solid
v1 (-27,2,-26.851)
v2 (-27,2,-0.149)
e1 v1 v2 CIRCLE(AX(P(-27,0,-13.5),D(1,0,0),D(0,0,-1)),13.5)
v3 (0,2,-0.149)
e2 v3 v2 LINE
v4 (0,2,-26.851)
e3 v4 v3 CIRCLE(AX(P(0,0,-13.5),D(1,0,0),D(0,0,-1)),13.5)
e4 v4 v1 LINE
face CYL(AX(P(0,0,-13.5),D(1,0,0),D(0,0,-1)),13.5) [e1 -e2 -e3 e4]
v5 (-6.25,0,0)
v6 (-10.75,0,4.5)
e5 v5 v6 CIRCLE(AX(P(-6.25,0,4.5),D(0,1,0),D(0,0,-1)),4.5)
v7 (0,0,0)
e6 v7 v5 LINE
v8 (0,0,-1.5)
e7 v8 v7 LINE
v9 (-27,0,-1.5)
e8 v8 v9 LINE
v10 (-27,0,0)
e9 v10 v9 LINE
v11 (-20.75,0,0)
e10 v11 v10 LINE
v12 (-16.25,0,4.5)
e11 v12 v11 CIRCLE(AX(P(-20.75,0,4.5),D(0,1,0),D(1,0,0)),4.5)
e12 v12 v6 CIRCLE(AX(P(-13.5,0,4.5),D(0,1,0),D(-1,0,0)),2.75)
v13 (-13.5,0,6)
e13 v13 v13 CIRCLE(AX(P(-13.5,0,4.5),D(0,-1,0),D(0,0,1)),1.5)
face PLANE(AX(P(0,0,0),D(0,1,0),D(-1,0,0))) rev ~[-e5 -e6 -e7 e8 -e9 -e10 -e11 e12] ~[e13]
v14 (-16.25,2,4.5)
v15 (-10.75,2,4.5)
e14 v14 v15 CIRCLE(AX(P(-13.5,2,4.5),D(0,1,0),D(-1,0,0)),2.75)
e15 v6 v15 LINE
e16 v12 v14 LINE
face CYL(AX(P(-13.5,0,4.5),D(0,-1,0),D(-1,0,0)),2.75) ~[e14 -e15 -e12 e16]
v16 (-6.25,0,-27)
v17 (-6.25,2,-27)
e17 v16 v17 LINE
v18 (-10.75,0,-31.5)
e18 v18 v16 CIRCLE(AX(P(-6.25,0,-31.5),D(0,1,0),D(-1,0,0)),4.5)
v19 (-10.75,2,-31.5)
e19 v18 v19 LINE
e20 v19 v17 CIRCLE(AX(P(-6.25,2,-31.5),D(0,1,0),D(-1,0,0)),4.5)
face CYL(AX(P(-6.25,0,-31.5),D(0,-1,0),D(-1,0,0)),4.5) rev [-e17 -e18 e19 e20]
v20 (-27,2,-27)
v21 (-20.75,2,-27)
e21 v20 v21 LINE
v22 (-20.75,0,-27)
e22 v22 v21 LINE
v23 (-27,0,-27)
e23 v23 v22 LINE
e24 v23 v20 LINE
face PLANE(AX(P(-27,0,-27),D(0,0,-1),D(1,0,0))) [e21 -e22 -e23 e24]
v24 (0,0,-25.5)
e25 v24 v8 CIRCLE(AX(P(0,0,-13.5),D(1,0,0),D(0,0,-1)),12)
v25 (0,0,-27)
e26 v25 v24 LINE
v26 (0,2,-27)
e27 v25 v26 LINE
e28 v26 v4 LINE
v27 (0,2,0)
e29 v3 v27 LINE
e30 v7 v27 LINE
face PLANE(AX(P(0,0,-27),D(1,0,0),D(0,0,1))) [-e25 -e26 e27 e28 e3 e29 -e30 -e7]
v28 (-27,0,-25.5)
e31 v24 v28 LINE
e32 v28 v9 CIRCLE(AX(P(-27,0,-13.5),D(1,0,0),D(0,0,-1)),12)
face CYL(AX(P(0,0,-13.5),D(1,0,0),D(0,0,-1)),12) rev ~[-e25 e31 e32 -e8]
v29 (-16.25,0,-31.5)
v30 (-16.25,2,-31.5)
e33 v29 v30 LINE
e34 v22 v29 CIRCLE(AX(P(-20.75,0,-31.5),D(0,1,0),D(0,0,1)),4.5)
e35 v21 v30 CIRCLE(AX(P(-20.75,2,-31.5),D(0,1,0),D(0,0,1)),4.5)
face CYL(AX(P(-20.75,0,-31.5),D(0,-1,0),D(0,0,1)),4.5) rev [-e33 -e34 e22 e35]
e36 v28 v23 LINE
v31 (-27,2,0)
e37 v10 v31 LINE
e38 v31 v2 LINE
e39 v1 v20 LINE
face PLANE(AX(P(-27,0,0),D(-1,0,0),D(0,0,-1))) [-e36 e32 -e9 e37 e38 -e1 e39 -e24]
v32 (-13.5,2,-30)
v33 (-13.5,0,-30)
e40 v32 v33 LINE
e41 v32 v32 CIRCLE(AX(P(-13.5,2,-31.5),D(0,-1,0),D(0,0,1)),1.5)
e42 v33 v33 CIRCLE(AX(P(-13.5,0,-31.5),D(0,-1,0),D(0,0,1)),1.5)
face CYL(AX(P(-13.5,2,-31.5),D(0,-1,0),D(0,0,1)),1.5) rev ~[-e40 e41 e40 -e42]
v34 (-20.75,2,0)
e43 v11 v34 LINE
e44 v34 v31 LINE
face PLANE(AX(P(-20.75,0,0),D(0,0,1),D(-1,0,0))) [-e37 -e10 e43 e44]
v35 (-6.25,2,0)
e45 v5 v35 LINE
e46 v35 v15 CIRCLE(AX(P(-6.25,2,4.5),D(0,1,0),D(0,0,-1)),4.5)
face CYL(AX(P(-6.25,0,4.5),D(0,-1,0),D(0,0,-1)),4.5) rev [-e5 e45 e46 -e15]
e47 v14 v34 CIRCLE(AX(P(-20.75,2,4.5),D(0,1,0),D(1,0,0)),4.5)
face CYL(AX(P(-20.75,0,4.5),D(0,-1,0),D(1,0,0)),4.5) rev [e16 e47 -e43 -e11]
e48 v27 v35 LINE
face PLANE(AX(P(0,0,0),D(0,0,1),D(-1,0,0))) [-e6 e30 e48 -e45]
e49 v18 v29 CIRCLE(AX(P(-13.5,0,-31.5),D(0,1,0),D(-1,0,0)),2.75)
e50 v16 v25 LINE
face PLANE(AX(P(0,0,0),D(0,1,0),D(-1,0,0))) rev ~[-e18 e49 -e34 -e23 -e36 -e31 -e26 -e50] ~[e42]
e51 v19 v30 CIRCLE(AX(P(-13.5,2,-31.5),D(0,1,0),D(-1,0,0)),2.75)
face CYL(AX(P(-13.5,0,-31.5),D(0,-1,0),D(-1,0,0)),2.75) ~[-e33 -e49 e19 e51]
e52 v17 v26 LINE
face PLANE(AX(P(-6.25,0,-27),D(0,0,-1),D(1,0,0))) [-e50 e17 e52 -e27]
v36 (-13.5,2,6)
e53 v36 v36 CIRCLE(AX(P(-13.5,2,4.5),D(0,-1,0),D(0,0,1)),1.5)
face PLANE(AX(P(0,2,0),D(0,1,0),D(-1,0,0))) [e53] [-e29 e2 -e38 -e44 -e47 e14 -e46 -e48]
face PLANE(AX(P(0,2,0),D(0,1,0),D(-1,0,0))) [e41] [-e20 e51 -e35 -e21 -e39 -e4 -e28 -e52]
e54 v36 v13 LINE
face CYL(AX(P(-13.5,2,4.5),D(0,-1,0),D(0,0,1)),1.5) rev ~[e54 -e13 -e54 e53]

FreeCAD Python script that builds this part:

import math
import FreeCAD as App
import Part
import Sketcher
from FreeCAD import Vector
Q = App.Units.Quantity

doc = App.newDocument("Part")
body = doc.addObject("PartDesign::Body", "Body")

# Sketch on XZ plane
sketch1 = body.newObject("Sketcher::SketchObject", "Sketch")
sketch1.AttachmentSupport = (doc.getObject("XZ_Plane"), [""])
sketch1.MapMode = "FlatFace"
sketch1.addGeometry(Part.LineSegment(Vector(-6.25, 0, 0), Vector(0, 0, 0)), False)
sketch1.addGeometry(Part.LineSegment(Vector(0, 0, 0), Vector(0, -27, 0)), False)
sketch1.addGeometry(Part.LineSegment(Vector(0, -27, 0), Vector(-6.25, -27, 0)), False)
sketch1.addGeometry(Part.ArcOfCircle(Part.Circle(Vector(-6.25, -31.5, 0), Vector(0, 0, 1), 4.5), math.radians(90), math.radians(180)), False)
sketch1.addGeometry(Part.ArcOfCircle(Part.Circle(Vector(-13.5, -31.5, 0), Vector(0, 0, 1), 2.75), math.radians(180), math.radians(360)), False)
sketch1.addGeometry(Part.ArcOfCircle(Part.Circle(Vector(-20.75, -31.5, 0), Vector(0, 0, 1), 4.5), math.radians(0), math.radians(90)), False)
sketch1.addGeometry(Part.LineSegment(Vector(-20.75, -27, 0), Vector(-27, -27, 0)), False)
sketch1.addGeometry(Part.LineSegment(Vector(-27, -27, 0), Vector(-27, 0, 0)), False)
sketch1.addGeometry(Part.LineSegment(Vector(-27, 0, 0), Vector(-20.75, 0, 0)), False)
sketch1.addGeometry(Part.ArcOfCircle(Part.Circle(Vector(-20.75, 4.5, 0), Vector(0, 0, 1), 4.5), math.radians(-90), math.radians(0)), False)
sketch1.addGeometry(Part.ArcOfCircle(Part.Circle(Vector(-13.5, 4.5, 0), Vector(0, 0, 1), 2.75), math.radians(0), math.radians(180)), False)
sketch1.addGeometry(Part.ArcOfCircle(Part.Circle(Vector(-6.25, 4.5, 0), Vector(0, 0, 1), 4.5), math.radians(180), math.radians(270)), False)
sketch1.addConstraint(Sketcher.Constraint("Coincident", 0, 2, 1, 1))
sketch1.addConstraint(Sketcher.Constraint("Coincident", 1, 2, 2, 1))
sketch1.addConstraint(Sketcher.Constraint("Tangent", 2, 2, 3, 1))
sketch1.addConstraint(Sketcher.Constraint("Tangent", 3, 2, 4, 2))
sketch1.addConstraint(Sketcher.Constraint("Tangent", 4, 1, 5, 1))
sketch1.addConstraint(Sketcher.Constraint("Tangent", 5, 2, 6, 1))
sketch1.addConstraint(Sketcher.Constraint("Coincident", 6, 2, 7, 1))
sketch1.addConstraint(Sketcher.Constraint("Coincident", 7, 2, 8, 1))
sketch1.addConstraint(Sketcher.Constraint("Tangent", 8, 2, 9, 1))
sketch1.addConstraint(Sketcher.Constraint("Tangent", 9, 2, 10, 2))
sketch1.addConstraint(Sketcher.Constraint("Tangent", 10, 1, 11, 1))
sketch1.addConstraint(Sketcher.Constraint("Tangent", 11, 2, 0, 1))
sketch1.addConstraint(Sketcher.Constraint("Horizontal", 0))
sketch1.addConstraint(Sketcher.Constraint("Vertical", 1))
sketch1.addConstraint(Sketcher.Constraint("Horizontal", 2))
sketch1.addConstraint(Sketcher.Constraint("Horizontal", 6))
sketch1.addConstraint(Sketcher.Constraint("Vertical", 7))
sketch1.addConstraint(Sketcher.Constraint("Horizontal", 8))
sketch1.addConstraint(Sketcher.Constraint("Coincident", 0, 2, -1, 1))
sketch1.addConstraint(Sketcher.Constraint("Equal", 3, 5))
sketch1.addConstraint(Sketcher.Constraint("Equal", 5, 9))
sketch1.addConstraint(Sketcher.Constraint("Equal", 4, 10))
sketch1.addConstraint(Sketcher.Constraint("Equal", 9, 11))
sketch1.addConstraint(Sketcher.Constraint("PointOnObject", 7, 2, -1))
sketch1.addConstraint(Sketcher.Constraint("Horizontal", 3, 3, 4, 3))
sketch1.addConstraint(Sketcher.Constraint("Horizontal", 4, 3, 5, 3))
sketch1.addConstraint(Sketcher.Constraint("Horizontal", 9, 3, 10, 3))
sketch1.addConstraint(Sketcher.Constraint("Vertical", 5, 3, 9, 3))
sketch1.addConstraint(Sketcher.Constraint("Equal", 2, 6))
sketch1.addConstraint(Sketcher.Constraint("Radius", 3, Q("4.5 mm")))
sketch1.addConstraint(Sketcher.Constraint("DistanceY", 1, 2, 1, 1, Q("27 mm")))
sketch1.addConstraint(Sketcher.Constraint("Radius", 4, Q("2.75 mm")))
sketch1.addConstraint(Sketcher.Constraint("DistanceX", 6, 2, -1, 1, Q("27 mm")))
pad1 = body.newObject("PartDesign::Pad", "Pad")
pad1.Profile = sketch1
pad1.Length = 2
pad1.Reversed = True

# Sketch on YZ plane
sketch2 = body.newObject("Sketcher::SketchObject", "Sketch001")
sketch2.AttachmentSupport = (doc.getObject("YZ_Plane"), [""])
sketch2.MapMode = "FlatFace"
sketch2.addGeometry(Part.LineSegment(Vector(2, -0.149, 0), Vector(2, -26.851, 0)), False)
sketch2.addGeometry(Part.ArcOfCircle(Part.Circle(Vector(0, -13.5, 0), Vector(0, 0, 1), 13.5), math.radians(-81.480357), math.radians(81.480357)), False)
sketch2.addConstraint(Sketcher.Constraint("Coincident", 0, 1, 1, 2))
sketch2.addConstraint(Sketcher.Constraint("Coincident", 1, 1, 0, 2))
sketch2.addConstraint(Sketcher.Constraint("Vertical", 0))
sketch2.addConstraint(Sketcher.Constraint("PointOnObject", 1, 3, -2))
sketch2.addConstraint(Sketcher.Constraint("Radius", 1, Q("13.5 mm")))
sketch2.addConstraint(Sketcher.Constraint("DistanceX", -1, 1, 0, 1, Q("2 mm")))
sketch2.addConstraint(Sketcher.Constraint("DistanceY", 1, 3, -1, 1, Q("13.5 mm")))
pad2 = body.newObject("PartDesign::Pad", "Pad001")
pad2.Profile = sketch2
pad2.Length = 27
pad2.Reversed = True

# Sketch on XZ plane
sketch3 = body.newObject("Sketcher::SketchObject", "Sketch002")
sketch3.AttachmentSupport = (doc.getObject("XZ_Plane"), [""])
sketch3.MapMode = "FlatFace"
sketch3.AttachmentOffset = App.Placement(Vector(0, 0, -2), App.Rotation())
sketch3.addGeometry(Part.Circle(Vector(-13.5, -31.5, 0), Vector(0, 0, 1), 1.5), False)
sketch3.addGeometry(Part.Circle(Vector(-13.5, 4.5, 0), Vector(0, 0, 1), 1.5), False)
sketch3.addConstraint(Sketcher.Constraint("Equal", 0, 1))
sketch3.addConstraint(Sketcher.Constraint("Vertical", 0, 3, 1, 3))
sketch3.addConstraint(Sketcher.Constraint("Diameter", 0, Q("3 mm")))
sketch3.addConstraint(Sketcher.Constraint("DistanceY", 0, 3, 1, 3, Q("36 mm")))
sketch3.addConstraint(Sketcher.Constraint("DistanceX", 0, 3, -1, 1, Q("13.5 mm")))
sketch3.addConstraint(Sketcher.Constraint("DistanceY", 0, 3, -1, 1, Q("31.5 mm")))
doc.recompute()
hole = body.newObject("PartDesign::Hole", "Hole")
hole.Profile = sketch3
hole.ThreadType = "None"
hole.Diameter = 3
hole.DepthType = "ThroughAll"
hole.Reversed = True

# Sketch on YZ plane
sketch4 = body.newObject("Sketcher::SketchObject", "Sketch003")
sketch4.AttachmentSupport = (doc.getObject("YZ_Plane"), [""])
sketch4.MapMode = "FlatFace"
sketch4.addGeometry(Part.LineSegment(Vector(0, -1.5, 0), Vector(0, -25.5, 0)), False)
sketch4.addGeometry(Part.ArcOfCircle(Part.Circle(Vector(0, -13.5, 0), Vector(0, 0, 1), 12), math.radians(-90), math.radians(90)), False)
sketch4.addConstraint(Sketcher.Constraint("Coincident", 0, 1, 1, 2))
sketch4.addConstraint(Sketcher.Constraint("Coincident", 1, 1, 0, 2))
sketch4.addConstraint(Sketcher.Constraint("Vertical", 0))
sketch4.addConstraint(Sketcher.Constraint("PointOnObject", 1, 3, -2))
sketch4.addConstraint(Sketcher.Constraint("PointOnObject", 0, 1, -2))
sketch4.addConstraint(Sketcher.Constraint("Radius", 1, Q("12 mm")))
sketch4.addConstraint(Sketcher.Constraint("DistanceY", 1, 3, -1, 1, Q("13.5 mm")))
pocket1 = body.newObject("PartDesign::Pocket", "Pocket")
pocket1.Profile = sketch4
pocket1.Type = "ThroughAll"

doc.recompute()
